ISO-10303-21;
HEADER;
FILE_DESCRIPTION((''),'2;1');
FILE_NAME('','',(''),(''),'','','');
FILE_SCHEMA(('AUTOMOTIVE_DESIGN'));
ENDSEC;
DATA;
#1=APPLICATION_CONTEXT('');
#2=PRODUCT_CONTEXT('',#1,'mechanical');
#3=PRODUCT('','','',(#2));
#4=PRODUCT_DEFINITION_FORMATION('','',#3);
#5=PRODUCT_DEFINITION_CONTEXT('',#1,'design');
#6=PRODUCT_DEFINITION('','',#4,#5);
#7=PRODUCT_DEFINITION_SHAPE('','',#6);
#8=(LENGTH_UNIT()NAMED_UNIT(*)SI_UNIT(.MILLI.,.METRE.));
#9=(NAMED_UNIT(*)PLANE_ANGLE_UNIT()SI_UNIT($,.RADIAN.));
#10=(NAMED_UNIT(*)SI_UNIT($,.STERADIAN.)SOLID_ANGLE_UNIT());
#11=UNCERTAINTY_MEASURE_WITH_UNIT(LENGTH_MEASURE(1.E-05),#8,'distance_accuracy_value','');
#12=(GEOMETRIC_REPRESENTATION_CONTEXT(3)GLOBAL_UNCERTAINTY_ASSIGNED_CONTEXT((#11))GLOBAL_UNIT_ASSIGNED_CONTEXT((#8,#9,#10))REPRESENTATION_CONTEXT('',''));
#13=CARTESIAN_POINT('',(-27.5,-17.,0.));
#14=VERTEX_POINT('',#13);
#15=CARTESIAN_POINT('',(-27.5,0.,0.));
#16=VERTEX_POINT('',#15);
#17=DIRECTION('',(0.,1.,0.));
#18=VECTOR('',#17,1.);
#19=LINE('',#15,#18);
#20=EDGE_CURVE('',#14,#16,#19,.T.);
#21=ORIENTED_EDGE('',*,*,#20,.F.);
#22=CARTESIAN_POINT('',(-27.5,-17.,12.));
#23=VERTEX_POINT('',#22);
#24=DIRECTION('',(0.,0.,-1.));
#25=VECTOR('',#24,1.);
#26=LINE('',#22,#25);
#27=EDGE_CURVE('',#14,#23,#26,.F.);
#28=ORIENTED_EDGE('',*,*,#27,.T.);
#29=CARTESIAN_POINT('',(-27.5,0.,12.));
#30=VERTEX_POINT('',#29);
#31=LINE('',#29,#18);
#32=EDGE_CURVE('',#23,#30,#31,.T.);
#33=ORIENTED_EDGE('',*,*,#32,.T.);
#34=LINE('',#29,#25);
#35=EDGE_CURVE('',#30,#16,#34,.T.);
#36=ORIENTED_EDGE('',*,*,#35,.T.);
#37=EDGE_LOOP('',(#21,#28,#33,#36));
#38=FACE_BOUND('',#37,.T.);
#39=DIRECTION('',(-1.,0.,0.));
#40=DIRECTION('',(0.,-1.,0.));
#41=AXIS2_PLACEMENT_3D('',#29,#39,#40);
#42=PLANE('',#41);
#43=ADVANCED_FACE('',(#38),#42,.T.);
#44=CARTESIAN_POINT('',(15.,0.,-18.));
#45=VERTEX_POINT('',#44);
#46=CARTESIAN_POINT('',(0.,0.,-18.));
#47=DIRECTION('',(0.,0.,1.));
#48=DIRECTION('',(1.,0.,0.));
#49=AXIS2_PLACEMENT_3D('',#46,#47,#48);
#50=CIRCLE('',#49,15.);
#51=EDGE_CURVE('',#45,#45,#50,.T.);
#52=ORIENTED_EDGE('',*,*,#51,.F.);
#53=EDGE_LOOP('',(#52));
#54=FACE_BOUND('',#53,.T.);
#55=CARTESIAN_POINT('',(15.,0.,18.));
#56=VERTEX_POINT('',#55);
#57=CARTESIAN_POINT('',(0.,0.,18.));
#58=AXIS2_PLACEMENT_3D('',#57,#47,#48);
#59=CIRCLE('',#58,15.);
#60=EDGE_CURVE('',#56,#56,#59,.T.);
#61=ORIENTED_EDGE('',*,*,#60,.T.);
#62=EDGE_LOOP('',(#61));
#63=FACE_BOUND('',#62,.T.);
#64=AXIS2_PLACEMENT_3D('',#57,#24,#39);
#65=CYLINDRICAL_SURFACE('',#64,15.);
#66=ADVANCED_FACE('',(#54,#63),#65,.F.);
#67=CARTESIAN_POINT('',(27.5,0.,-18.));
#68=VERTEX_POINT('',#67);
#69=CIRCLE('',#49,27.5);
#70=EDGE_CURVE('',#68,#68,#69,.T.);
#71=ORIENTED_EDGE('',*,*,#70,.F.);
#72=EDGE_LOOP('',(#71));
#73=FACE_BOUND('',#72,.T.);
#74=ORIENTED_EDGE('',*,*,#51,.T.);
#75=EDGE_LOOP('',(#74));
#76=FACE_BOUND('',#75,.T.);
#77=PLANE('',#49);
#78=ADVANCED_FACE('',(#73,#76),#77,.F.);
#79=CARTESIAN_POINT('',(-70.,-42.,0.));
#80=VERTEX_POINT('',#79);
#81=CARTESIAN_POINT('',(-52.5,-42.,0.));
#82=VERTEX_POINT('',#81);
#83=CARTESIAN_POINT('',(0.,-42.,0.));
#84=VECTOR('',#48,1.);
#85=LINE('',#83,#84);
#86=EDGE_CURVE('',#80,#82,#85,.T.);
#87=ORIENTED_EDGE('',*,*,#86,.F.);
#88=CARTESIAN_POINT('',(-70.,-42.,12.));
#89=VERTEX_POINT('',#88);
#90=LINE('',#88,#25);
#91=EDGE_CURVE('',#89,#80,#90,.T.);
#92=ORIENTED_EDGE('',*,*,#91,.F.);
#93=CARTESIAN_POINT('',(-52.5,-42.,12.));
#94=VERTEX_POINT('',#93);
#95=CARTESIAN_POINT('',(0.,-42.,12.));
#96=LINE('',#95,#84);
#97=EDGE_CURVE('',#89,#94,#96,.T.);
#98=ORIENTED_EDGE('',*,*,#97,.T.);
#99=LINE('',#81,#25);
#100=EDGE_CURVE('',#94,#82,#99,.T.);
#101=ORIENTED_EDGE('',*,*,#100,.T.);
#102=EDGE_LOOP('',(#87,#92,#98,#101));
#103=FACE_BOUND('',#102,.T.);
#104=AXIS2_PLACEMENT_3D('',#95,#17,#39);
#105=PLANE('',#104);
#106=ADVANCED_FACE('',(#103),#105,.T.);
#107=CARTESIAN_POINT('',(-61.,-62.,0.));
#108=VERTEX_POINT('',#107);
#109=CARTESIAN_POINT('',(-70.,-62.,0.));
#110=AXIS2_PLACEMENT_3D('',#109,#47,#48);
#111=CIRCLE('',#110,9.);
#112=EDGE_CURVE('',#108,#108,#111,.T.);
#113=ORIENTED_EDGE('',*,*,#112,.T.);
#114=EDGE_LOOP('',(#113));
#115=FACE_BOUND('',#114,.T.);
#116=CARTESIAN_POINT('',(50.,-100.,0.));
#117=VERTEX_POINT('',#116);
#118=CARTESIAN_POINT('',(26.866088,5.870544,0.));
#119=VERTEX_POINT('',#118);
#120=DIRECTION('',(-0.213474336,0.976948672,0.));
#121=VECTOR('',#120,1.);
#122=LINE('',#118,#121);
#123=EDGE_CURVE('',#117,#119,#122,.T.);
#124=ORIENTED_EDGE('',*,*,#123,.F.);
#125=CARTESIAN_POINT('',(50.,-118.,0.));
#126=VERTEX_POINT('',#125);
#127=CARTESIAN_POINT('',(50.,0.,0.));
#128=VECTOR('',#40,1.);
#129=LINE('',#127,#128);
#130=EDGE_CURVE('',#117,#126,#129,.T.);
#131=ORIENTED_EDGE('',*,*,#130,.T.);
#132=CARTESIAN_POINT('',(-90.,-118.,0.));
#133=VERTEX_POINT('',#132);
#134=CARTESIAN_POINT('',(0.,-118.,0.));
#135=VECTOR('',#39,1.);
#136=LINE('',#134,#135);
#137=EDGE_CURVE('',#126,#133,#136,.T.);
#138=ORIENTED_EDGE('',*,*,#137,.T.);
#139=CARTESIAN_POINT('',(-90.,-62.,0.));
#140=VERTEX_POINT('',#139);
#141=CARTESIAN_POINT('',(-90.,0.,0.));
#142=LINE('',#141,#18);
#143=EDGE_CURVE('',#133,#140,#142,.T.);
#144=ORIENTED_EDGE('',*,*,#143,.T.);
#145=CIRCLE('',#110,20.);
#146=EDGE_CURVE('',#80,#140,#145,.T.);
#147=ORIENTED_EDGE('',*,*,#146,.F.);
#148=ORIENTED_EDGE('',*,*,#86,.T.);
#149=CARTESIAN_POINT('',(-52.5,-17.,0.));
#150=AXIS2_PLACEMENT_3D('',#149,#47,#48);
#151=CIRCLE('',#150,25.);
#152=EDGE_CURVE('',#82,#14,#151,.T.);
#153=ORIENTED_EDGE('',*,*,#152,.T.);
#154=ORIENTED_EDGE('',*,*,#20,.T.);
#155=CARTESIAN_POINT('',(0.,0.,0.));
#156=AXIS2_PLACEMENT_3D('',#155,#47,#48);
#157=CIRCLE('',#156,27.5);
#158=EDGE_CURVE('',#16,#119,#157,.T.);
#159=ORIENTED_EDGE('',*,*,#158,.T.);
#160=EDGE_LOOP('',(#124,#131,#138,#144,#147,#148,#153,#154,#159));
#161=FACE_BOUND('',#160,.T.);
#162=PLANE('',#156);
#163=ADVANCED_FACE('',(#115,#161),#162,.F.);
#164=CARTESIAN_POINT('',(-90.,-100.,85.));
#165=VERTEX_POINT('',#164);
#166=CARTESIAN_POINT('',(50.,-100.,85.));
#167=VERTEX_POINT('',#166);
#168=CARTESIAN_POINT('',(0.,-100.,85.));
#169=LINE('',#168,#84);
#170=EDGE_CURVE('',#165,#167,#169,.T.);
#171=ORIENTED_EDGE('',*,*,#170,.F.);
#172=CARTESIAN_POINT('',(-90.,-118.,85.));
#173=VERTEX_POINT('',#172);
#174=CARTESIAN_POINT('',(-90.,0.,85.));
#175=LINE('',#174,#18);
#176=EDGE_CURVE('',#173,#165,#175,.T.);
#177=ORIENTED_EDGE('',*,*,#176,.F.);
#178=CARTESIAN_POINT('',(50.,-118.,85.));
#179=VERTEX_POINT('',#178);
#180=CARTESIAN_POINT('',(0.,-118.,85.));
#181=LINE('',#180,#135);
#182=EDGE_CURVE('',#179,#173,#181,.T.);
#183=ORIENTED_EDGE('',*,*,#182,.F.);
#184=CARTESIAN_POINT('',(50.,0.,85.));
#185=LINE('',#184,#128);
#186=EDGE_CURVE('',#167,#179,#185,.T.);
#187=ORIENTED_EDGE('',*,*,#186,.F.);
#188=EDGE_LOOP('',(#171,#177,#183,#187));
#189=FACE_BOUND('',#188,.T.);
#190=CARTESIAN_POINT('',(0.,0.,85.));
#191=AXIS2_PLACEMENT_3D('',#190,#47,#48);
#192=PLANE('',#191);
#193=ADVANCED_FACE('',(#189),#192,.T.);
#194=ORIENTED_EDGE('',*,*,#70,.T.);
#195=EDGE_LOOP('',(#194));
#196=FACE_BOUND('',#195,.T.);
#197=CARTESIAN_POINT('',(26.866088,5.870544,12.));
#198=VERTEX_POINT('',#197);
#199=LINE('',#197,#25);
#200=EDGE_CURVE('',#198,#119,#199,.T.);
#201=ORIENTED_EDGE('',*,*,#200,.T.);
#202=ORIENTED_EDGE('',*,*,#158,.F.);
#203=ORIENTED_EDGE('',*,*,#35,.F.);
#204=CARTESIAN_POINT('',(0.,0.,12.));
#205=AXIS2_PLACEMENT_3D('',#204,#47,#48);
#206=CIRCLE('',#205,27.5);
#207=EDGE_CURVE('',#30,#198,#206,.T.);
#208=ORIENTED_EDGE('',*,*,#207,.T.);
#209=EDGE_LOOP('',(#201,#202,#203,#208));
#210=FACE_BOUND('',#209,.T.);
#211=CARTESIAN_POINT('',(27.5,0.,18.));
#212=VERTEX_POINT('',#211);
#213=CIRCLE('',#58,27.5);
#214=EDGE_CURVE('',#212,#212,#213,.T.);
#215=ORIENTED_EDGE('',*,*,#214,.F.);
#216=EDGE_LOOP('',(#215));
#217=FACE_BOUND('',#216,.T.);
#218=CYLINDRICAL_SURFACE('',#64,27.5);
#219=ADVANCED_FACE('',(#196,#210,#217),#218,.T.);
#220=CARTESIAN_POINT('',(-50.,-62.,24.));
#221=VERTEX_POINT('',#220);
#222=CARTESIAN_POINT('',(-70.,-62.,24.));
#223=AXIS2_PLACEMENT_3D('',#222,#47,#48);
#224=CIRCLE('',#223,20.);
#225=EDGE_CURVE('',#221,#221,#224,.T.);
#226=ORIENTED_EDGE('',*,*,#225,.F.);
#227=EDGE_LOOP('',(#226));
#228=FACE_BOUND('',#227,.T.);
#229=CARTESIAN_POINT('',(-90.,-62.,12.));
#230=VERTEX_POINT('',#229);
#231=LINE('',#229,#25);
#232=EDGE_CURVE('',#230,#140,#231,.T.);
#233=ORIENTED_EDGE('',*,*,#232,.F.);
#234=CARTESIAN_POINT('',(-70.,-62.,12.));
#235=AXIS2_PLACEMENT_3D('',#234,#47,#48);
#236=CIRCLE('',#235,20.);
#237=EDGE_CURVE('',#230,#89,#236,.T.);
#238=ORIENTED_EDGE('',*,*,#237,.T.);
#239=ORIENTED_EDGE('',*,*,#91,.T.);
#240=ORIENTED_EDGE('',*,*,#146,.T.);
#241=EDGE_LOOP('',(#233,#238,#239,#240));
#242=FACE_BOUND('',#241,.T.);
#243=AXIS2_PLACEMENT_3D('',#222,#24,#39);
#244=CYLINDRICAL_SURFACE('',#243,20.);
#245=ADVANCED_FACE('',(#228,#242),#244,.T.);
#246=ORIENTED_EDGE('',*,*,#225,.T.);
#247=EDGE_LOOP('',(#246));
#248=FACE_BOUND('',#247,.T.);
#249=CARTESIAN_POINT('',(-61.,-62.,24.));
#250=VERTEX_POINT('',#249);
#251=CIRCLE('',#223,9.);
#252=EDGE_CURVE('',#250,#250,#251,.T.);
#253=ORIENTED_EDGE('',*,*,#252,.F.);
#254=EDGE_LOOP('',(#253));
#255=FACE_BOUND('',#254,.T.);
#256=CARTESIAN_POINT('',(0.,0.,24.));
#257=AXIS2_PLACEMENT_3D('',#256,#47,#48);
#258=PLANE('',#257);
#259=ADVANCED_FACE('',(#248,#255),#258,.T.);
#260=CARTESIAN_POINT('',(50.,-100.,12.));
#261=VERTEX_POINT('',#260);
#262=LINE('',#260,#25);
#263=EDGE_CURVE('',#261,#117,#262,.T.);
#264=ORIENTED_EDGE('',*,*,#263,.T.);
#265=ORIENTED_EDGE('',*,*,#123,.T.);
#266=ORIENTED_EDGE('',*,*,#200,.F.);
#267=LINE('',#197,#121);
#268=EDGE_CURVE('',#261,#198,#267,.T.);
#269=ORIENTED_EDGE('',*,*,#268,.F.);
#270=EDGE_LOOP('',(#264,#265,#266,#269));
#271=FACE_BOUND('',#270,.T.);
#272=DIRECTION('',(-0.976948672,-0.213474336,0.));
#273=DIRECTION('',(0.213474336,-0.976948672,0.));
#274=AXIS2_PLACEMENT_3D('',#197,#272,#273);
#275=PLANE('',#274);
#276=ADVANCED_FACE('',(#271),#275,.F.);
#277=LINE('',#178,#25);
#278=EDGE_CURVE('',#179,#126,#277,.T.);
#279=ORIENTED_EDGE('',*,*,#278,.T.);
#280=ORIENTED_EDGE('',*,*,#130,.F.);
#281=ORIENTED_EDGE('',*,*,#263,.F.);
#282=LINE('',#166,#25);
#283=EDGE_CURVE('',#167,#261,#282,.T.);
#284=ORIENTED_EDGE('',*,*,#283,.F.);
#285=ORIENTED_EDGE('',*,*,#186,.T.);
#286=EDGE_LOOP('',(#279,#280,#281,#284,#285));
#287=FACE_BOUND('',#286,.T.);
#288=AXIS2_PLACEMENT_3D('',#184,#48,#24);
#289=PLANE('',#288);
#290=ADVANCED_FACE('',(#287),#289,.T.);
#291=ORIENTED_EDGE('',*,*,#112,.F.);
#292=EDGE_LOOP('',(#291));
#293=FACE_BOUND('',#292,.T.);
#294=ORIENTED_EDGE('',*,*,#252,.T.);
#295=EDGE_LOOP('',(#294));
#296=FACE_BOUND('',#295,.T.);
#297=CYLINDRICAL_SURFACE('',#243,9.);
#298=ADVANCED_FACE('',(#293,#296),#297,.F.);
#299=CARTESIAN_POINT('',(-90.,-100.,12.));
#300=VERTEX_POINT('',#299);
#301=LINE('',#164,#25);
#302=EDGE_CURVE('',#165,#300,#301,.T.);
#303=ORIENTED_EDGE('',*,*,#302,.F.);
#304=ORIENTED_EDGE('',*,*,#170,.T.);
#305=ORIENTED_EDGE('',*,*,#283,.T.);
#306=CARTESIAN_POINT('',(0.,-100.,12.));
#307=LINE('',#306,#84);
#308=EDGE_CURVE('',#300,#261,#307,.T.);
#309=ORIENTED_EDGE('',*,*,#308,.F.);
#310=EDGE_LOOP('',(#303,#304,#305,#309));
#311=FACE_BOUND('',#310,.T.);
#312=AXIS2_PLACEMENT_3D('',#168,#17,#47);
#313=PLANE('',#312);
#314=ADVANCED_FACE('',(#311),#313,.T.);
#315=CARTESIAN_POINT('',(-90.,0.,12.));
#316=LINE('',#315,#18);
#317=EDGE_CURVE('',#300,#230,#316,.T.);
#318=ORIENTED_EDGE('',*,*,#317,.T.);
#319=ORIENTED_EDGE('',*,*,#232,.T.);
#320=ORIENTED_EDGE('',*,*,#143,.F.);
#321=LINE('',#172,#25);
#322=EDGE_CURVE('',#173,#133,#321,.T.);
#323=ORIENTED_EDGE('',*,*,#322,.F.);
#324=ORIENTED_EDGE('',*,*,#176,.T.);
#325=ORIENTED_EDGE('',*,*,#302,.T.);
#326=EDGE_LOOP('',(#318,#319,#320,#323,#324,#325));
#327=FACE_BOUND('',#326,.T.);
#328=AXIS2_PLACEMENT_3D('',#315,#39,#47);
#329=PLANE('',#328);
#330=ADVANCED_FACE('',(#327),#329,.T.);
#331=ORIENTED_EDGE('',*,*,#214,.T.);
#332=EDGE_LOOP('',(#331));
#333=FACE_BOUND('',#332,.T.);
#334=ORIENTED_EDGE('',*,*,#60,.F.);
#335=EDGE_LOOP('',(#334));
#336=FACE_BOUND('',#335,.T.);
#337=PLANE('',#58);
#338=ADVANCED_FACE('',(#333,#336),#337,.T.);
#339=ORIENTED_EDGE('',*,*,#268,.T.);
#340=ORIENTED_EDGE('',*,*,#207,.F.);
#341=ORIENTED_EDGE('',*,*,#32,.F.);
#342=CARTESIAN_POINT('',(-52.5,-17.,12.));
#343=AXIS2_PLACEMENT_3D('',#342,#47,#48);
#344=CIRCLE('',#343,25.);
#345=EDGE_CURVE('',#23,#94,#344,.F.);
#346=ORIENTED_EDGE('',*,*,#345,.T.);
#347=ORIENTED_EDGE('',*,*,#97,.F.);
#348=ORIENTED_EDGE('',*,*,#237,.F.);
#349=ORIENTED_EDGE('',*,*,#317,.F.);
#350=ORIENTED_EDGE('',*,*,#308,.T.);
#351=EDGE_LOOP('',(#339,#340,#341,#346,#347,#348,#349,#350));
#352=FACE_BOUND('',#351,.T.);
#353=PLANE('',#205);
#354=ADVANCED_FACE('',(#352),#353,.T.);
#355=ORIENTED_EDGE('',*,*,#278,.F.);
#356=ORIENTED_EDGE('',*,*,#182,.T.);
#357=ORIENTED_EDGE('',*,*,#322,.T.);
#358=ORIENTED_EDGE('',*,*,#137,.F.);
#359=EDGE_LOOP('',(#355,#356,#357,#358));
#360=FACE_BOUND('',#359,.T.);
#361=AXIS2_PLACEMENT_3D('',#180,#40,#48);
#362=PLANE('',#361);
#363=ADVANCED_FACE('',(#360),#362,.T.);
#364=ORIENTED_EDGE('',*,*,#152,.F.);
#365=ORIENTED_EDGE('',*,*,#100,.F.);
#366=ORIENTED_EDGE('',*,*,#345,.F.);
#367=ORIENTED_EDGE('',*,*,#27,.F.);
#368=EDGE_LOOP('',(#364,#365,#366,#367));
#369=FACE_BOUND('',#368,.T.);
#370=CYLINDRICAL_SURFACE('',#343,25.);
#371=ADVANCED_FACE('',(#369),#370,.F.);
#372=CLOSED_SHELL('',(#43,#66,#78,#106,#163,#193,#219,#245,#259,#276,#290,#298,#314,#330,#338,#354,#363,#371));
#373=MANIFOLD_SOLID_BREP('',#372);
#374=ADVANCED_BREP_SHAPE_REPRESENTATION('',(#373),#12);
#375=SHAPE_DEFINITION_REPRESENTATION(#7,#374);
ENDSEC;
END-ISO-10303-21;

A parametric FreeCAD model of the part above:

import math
import FreeCAD as App
import Part
import Sketcher
from FreeCAD import Vector


def edges_at(feature, points):
    """Names of the edges that pass closest to the given points."""
    edges = feature.Shape.Edges
    near = lambda p: min(range(len(edges)), key=lambda i: edges[i].distToShape(Part.Vertex(*p))[0])
    return sorted({f"Edge{near(p) + 1}" for p in points})

doc = App.newDocument("Part")
body = doc.addObject("PartDesign::Body", "Body")

# Sketch on XY plane
sketch1 = body.newObject("Sketcher::SketchObject", "Sketch")
sketch1.AttachmentSupport = (doc.getObject("XY_Plane"), [""])
sketch1.MapMode = "FlatFace"
sketch1.addGeometry([
    Part.LineSegment(Vector(-90, -100, 0), Vector(50, -100, 0)),  # 0
    Part.LineSegment(Vector(50, -100, 0), Vector(26.866088, 5.870544, 0)),  # 1
    Part.ArcOfCircle(Part.Circle(Vector(0, 0, 0), Vector(0, 0, 1), 27.5), math.radians(0), math.radians(12.326035)),  # 2
    Part.ArcOfCircle(Part.Circle(Vector(0, 0, 0), Vector(0, 0, 1), 27.5), math.radians(180), math.radians(360)),  # 3
    Part.LineSegment(Vector(-27.5, 0, 0), Vector(-27.5, -42, 0)),  # 4
    Part.LineSegment(Vector(-27.5, -42, 0), Vector(-70, -42, 0)),  # 5
    Part.ArcOfCircle(Part.Circle(Vector(-70, -62, 0), Vector(0, 0, 1), 20), math.radians(0), math.radians(90)),  # 6
    Part.ArcOfCircle(Part.Circle(Vector(-70, -62, 0), Vector(0, 0, 1), 20), math.radians(180), math.radians(360)),  # 7
    Part.LineSegment(Vector(-90, -62, 0), Vector(-90, -100, 0)),  # 8
], False)
sketch1.addConstraint([
    Sketcher.Constraint("Coincident", 0, 2, 1, 1),
    Sketcher.Constraint("Tangent", 1, 2, 2, 2),
    Sketcher.Constraint("Tangent", 2, 1, 3, 2),
    Sketcher.Constraint("Tangent", 3, 1, 4, 1),
    Sketcher.Constraint("Coincident", 4, 2, 5, 1),
    Sketcher.Constraint("Tangent", 5, 2, 6, 2),
    Sketcher.Constraint("Tangent", 6, 1, 7, 2),
    Sketcher.Constraint("Tangent", 7, 1, 8, 1),
    Sketcher.Constraint("Coincident", 8, 2, 0, 1),
    Sketcher.Constraint("Horizontal", 0),
    Sketcher.Constraint("Vertical", 4),
    Sketcher.Constraint("Horizontal", 5),
    Sketcher.Constraint("Vertical", 8),
    Sketcher.Constraint("Coincident", 2, 3, -1, 1),
    Sketcher.Constraint("Equal", 2, 3),
    Sketcher.Constraint("Equal", 6, 7),
    Sketcher.Constraint("PointOnObject", 2, 1, -1),
    Sketcher.Constraint("Horizontal", 7, 3, 6, 1),
    Sketcher.Constraint("Radius", 6, 20.0),
    Sketcher.Constraint("Radius", 2, 27.5),
    Sketcher.Constraint("DistanceX", 0, 1, 0, 2, 140.0),
    Sketcher.Constraint("DistanceY", 4, 2, 4, 1, 42.0),
    Sketcher.Constraint("DistanceY", 8, 2, 8, 1, 38.0),
    Sketcher.Constraint("DistanceX", 5, 2, 5, 1, 42.5),
])
pad1 = body.newObject("PartDesign::Pad", "Pad")
pad1.Profile = sketch1
pad1.Length = 12

# Sketch on XY plane
sketch2 = body.newObject("Sketcher::SketchObject", "Sketch001")
sketch2.AttachmentSupport = (doc.getObject("XY_Plane"), [""])
sketch2.MapMode = "FlatFace"
sketch2.addGeometry([
    Part.Circle(Vector(-70, -62, 0), Vector(0, 0, 1), 20),
    Part.Circle(Vector(-70, -62, 0), Vector(0, 0, 1), 9),
], False)
sketch2.addConstraint([
    Sketcher.Constraint("Coincident", 1, 3, 0, 3),
    Sketcher.Constraint("Diameter", 0, 40.0),
    Sketcher.Constraint("Diameter", 1, 18.0),
    Sketcher.Constraint("DistanceX", 0, 3, -1, 1, 70.0),
    Sketcher.Constraint("DistanceY", 0, 3, -1, 1, 62.0),
])
pad2 = body.newObject("PartDesign::Pad", "Pad001")
pad2.Profile = sketch2
pad2.Length = 24

# Sketch on XY plane
sketch3 = body.newObject("Sketcher::SketchObject", "Sketch002")
sketch3.AttachmentSupport = (doc.getObject("XY_Plane"), [""])
sketch3.MapMode = "FlatFace"
sketch3.addGeometry([
    Part.Circle(Vector(0, 0, 0), Vector(0, 0, 1), 27.5),
    Part.Circle(Vector(0, 0, 0), Vector(0, 0, 1), 15),
], False)
sketch3.addConstraint([
    Sketcher.Constraint("Coincident", 0, 3, -1, 1),
    Sketcher.Constraint("Coincident", 1, 3, -1, 1),
    Sketcher.Constraint("Diameter", 0, 55.0),
    Sketcher.Constraint("Diameter", 1, 30.0),
])
pad3 = body.newObject("PartDesign::Pad", "Pad002")
pad3.Profile = sketch3
pad3.Length = 36
pad3.Midplane = True

# Sketch on XY plane
sketch4 = body.newObject("Sketcher::SketchObject", "Sketch003")
sketch4.AttachmentSupport = (doc.getObject("XY_Plane"), [""])
sketch4.MapMode = "FlatFace"
sketch4.addGeometry([
    Part.LineSegment(Vector(50, -100, 0), Vector(-90, -100, 0)),
    Part.LineSegment(Vector(-90, -100, 0), Vector(-90, -118, 0)),
    Part.LineSegment(Vector(-90, -118, 0), Vector(50, -118, 0)),
    Part.LineSegment(Vector(50, -118, 0), Vector(50, -100, 0)),
], False)
sketch4.addConstraint([
    Sketcher.Constraint("Coincident", 0, 2, 1, 1),
    Sketcher.Constraint("Coincident", 1, 2, 2, 1),
    Sketcher.Constraint("Coincident", 2, 2, 3, 1),
    Sketcher.Constraint("Coincident", 3, 2, 0, 1),
    Sketcher.Constraint("Horizontal", 0),
    Sketcher.Constraint("Vertical", 1),
    Sketcher.Constraint("Horizontal", 2),
    Sketcher.Constraint("Vertical", 3),
    Sketcher.Constraint("DistanceX", 0, 2, 0, 1, 140.0),
    Sketcher.Constraint("DistanceY", 1, 2, 1, 1, 18.0),
    Sketcher.Constraint("DistanceX", 0, 2, -1, 1, 90.0),
    Sketcher.Constraint("DistanceY", 0, 2, -1, 1, 100.0),
])
pad4 = body.newObject("PartDesign::Pad", "Pad003")
pad4.Profile = sketch4
pad4.Length = 85
doc.recompute()

fillet = body.newObject("PartDesign::Fillet", "Fillet")
fillet.Base = (pad4, edges_at(pad4, [(-27.5, -42, 6)]))
fillet.Radius = 25

doc.recompute()
